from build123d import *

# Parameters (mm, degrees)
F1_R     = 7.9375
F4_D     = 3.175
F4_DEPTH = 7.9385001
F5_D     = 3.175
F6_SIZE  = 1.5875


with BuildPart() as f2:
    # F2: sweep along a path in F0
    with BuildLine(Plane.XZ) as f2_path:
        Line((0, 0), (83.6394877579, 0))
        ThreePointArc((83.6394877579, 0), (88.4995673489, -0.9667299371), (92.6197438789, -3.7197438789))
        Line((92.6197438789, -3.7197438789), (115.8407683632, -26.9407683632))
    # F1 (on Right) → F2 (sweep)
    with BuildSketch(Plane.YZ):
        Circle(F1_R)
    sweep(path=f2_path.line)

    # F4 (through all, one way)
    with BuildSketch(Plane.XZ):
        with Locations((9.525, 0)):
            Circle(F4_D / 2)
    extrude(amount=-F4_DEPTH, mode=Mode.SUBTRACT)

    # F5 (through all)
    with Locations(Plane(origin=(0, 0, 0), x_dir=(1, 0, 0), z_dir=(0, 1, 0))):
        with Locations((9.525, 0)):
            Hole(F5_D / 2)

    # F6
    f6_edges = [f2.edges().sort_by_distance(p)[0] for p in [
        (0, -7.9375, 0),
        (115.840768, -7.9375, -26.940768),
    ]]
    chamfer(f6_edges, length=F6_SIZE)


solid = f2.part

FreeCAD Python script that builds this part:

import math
import FreeCAD as App
import Part
import Sketcher

V = App.Vector
Q = App.Units.Quantity


def edges_at(feature, points):
    """Names of the edges that pass closest to the given points."""
    edges = feature.Shape.Edges
    near = lambda p: min(range(len(edges)), key=lambda i: edges[i].distToShape(Part.Vertex(*p))[0])
    return sorted({f"Edge{near(p) + 1}" for p in points})

doc = App.newDocument("Part")
params = doc.addObject("Spreadsheet::Sheet", "Params")
for row, (alias, value) in enumerate([
    ("sketch1_diameter", "0.625 in"),
    ("sketch2_radius", "0.5 in"),
    ("sketch3_diameter", "0.125 in"),
    ("sketch4_diameter", "0.125 in"),
    ("hole_diameter", "0.125 in"),
    ("chamfer_size", "0.0625 in"),
], start=1):
    params.set(f"A{row}", alias)
    params.set(f"B{row}", "=" + value)
    params.setAlias(f"B{row}", alias)

body = doc.addObject("PartDesign::Body", "Body")

sketch1 = body.newObject("Sketcher::SketchObject", "Sketch")
sketch1.AttachmentSupport = (doc.getObject("YZ_Plane"), [""])
sketch1.MapMode = "FlatFace"
sketch1.addGeometry(Part.Circle(V(0, 0, 0), V(0, 0, 1), 7.9375), False)
sketch1.addConstraint([
    Sketcher.Constraint("Coincident", 0, 3, -1, 1),
    Sketcher.Constraint("Diameter", 0, Q("0.625 in")),
])
sketch1.setExpression("Constraints[1]", "Params.sketch1_diameter")

sketch2 = body.newObject("Sketcher::SketchObject", "Sketch001")
sketch2.AttachmentSupport = (doc.getObject("XZ_Plane"), [""])
sketch2.MapMode = "FlatFace"
sketch2.addGeometry([
    Part.LineSegment(V(0, 0, 0), V(83.639488, 0, 0)),
    Part.ArcOfCircle(Part.Circle(V(83.639488, -12.7, 0), V(0, 0, 1), 12.7), math.radians(45), math.radians(90)),
    Part.LineSegment(V(92.619744, -3.719744, 0), V(115.840768, -26.940768, 0)),
], False)
sketch2.addConstraint([
    Sketcher.Constraint("Tangent", 0, 2, 1, 2),
    Sketcher.Constraint("Tangent", 1, 1, 2, 1),
    Sketcher.Constraint("Horizontal", 0),
    Sketcher.Constraint("Coincident", 0, 1, -1, 1),
    Sketcher.Constraint("Radius", 1, Q("0.5 in")),
    Sketcher.Constraint("Angle", 2, Q("-45 deg")),
    Sketcher.Constraint("DistanceX", 0, 1, 0, 2, Q("83.639488 mm")),
    Sketcher.Constraint("DistanceX", -1, 1, 2, 2, Q("115.840768 mm")),
])
sketch2.setExpression("Constraints[4]", "Params.sketch2_radius")
doc.recompute()

additivepipe = body.newObject("PartDesign::AdditivePipe", "AdditivePipe")
additivepipe.Profile = sketch1
additivepipe.Spine = (sketch2, ["Edge1", "Edge2", "Edge3"])

sketch3 = body.newObject("Sketcher::SketchObject", "Sketch002")
sketch3.AttachmentSupport = (doc.getObject("XZ_Plane"), [""])
sketch3.MapMode = "FlatFace"
sketch3.addGeometry(Part.Circle(V(9.525, 0, 0), V(0, 0, 1), 1.5875), False)
sketch3.addConstraint([
    Sketcher.Constraint("PointOnObject", 0, 3, -1),
    Sketcher.Constraint("Diameter", 0, Q("0.125 in")),
    Sketcher.Constraint("DistanceX", -1, 1, 0, 3, Q("0.375 in")),
])
sketch3.setExpression("Constraints[1]", "Params.sketch3_diameter")
pocket1 = body.newObject("PartDesign::Pocket", "Pocket")
pocket1.Profile = sketch3
pocket1.Type = "ThroughAll"

sketch4 = body.newObject("Sketcher::SketchObject", "Sketch003")
sketch4.AttachmentSupport = (doc.getObject("XZ_Plane"), [""])
sketch4.MapMode = "FlatFace"
sketch4.addGeometry(Part.Circle(V(9.525, 0, 0), V(0, 0, 1), 1.5875), False)
sketch4.addConstraint([
    Sketcher.Constraint("PointOnObject", 0, 3, -1),
    Sketcher.Constraint("Diameter", 0, Q("0.125 in")),
    Sketcher.Constraint("DistanceX", -1, 1, 0, 3, Q("0.375 in")),
])
sketch4.setExpression("Constraints[1]", "Params.sketch4_diameter")
doc.recompute()
hole = body.newObject("PartDesign::Hole", "Hole")
hole.Profile = sketch4
hole.ThreadType = "None"
hole.setExpression("Diameter", "Params.hole_diameter")
hole.DepthType = "ThroughAll"
hole.Reversed = True
doc.recompute()

chamfer = body.newObject("PartDesign::Chamfer", "Chamfer")
chamfer.Base = (hole, edges_at(hole, [(0, -7.938, 0), (115.841, -7.938, -26.941)]))
chamfer.setExpression("Size", "Params.chamfer_size")

doc.recompute()
